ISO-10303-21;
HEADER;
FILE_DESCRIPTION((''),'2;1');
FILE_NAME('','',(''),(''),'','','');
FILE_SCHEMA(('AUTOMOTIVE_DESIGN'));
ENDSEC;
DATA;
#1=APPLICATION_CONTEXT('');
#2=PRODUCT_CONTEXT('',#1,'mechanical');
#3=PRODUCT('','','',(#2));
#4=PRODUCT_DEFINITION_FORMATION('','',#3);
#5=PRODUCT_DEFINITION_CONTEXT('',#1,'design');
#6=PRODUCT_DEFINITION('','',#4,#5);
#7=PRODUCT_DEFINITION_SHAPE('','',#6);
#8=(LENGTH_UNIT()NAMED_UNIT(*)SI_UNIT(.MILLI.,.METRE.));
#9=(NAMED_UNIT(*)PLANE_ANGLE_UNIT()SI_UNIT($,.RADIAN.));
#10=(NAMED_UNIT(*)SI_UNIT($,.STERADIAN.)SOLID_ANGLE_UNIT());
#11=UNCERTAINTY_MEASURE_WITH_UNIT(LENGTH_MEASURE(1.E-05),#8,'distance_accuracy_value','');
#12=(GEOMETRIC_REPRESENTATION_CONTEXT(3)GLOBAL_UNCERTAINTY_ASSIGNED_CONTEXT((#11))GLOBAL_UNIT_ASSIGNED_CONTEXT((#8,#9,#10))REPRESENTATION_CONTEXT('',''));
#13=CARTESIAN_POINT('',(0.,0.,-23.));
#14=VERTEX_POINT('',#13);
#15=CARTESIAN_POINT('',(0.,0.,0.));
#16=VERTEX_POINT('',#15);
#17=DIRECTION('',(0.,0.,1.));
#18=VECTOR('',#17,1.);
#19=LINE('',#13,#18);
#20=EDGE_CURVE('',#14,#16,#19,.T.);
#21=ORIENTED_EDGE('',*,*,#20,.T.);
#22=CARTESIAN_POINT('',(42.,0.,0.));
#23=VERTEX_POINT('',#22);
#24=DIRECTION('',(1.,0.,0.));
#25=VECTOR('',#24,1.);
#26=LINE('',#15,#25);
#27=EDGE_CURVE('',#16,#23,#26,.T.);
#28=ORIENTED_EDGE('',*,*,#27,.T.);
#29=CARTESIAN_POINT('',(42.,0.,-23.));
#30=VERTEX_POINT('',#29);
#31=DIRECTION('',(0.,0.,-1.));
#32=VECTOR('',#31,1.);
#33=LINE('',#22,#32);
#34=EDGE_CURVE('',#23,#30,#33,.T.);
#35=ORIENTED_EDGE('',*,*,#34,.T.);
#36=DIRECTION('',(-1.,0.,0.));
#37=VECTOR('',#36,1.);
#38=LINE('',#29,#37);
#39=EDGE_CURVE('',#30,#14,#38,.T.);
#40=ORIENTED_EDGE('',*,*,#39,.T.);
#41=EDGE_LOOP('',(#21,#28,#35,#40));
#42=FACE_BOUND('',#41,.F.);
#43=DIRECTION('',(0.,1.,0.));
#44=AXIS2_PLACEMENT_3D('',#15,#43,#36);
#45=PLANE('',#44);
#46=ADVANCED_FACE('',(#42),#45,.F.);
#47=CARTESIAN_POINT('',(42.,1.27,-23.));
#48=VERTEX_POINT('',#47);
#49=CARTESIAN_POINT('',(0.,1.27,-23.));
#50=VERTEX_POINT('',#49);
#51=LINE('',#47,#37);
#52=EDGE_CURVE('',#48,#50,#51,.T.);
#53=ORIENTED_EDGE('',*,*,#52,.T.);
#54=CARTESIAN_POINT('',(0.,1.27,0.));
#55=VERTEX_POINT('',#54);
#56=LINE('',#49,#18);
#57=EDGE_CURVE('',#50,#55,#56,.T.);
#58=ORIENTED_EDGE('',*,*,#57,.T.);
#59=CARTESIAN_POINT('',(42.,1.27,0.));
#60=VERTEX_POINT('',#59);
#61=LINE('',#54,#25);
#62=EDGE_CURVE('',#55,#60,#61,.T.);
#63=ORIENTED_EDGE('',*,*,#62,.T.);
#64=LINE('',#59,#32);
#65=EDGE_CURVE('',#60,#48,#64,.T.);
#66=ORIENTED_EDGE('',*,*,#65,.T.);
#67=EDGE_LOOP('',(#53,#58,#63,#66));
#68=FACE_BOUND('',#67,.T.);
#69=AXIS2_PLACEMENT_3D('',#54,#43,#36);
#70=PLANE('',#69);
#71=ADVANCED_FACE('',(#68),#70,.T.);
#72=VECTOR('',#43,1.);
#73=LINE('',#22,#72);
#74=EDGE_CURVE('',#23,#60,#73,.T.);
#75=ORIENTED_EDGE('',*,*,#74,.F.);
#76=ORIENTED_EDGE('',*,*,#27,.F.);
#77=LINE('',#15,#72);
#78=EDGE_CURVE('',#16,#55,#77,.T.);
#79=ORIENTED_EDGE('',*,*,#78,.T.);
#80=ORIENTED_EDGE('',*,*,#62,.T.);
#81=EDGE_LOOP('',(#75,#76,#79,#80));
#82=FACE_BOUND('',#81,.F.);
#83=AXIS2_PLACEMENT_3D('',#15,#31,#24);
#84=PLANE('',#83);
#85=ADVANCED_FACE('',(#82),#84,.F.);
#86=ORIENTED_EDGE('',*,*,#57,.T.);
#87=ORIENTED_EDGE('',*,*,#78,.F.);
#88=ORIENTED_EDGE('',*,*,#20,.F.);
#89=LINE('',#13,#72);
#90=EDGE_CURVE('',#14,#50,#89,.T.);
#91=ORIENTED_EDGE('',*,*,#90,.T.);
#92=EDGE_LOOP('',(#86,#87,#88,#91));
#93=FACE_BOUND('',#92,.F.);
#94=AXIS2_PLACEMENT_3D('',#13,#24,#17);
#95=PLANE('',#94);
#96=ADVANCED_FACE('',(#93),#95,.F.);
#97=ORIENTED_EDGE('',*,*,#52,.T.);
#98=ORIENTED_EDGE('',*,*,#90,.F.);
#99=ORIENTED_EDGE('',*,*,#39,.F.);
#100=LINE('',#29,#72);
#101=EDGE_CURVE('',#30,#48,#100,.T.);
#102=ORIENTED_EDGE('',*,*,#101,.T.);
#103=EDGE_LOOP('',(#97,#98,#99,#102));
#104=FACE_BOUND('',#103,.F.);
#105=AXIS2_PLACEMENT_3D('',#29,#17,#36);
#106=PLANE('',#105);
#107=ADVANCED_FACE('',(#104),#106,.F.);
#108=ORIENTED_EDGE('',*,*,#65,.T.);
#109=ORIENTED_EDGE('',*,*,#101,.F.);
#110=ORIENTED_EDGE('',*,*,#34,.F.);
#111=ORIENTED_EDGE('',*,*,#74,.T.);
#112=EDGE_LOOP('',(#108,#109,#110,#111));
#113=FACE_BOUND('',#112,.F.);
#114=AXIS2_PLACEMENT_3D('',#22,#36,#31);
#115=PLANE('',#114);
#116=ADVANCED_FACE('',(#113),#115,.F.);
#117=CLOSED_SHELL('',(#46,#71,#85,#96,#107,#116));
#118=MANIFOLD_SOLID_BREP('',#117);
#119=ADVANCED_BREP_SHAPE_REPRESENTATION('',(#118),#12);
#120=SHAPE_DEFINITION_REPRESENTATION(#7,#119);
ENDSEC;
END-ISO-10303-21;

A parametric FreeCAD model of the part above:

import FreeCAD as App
import Part
import Sketcher
Q = App.Units.Quantity


def add_polygon(sketch, points):
    """Adds a closed chain of lines whose ends are joined by coincident constraints."""
    first, n = sketch.GeometryCount, len(points)
    for a, b in zip(points, points[1:] + points[:1]):
        sketch.addGeometry(Part.LineSegment(App.Vector(*a, 0), App.Vector(*b, 0)), False)
    for i in range(n):
        sketch.addConstraint(Sketcher.Constraint("Coincident", first + i, 2, first + (i + 1) % n, 1))

doc = App.newDocument("Part")
body = doc.addObject("PartDesign::Body", "Body")

sketch1 = body.newObject("Sketcher::SketchObject", "Sketch")
sketch1.AttachmentSupport = (doc.getObject("XZ_Plane"), [""])
sketch1.MapMode = "FlatFace"
add_polygon(sketch1, [(0, -23), (0, 0), (42, 0), (42, -23)])
sketch1.addConstraint(Sketcher.Constraint("Vertical", 0))
sketch1.addConstraint(Sketcher.Constraint("Horizontal", 1))
sketch1.addConstraint(Sketcher.Constraint("Vertical", 2))
sketch1.addConstraint(Sketcher.Constraint("Horizontal", 3))
sketch1.addConstraint(Sketcher.Constraint("Coincident", 0, 2, -1, 1))
sketch1.addConstraint(Sketcher.Constraint("DistanceX", 1, 1, 1, 2, Q("42 mm")))
sketch1.addConstraint(Sketcher.Constraint("DistanceY", 0, 1, 0, 2, Q("23 mm")))
pad1 = body.newObject("PartDesign::Pad", "Pad")
pad1.Profile = sketch1
pad1.Length = 1.27
pad1.Reversed = True

doc.recompute()
